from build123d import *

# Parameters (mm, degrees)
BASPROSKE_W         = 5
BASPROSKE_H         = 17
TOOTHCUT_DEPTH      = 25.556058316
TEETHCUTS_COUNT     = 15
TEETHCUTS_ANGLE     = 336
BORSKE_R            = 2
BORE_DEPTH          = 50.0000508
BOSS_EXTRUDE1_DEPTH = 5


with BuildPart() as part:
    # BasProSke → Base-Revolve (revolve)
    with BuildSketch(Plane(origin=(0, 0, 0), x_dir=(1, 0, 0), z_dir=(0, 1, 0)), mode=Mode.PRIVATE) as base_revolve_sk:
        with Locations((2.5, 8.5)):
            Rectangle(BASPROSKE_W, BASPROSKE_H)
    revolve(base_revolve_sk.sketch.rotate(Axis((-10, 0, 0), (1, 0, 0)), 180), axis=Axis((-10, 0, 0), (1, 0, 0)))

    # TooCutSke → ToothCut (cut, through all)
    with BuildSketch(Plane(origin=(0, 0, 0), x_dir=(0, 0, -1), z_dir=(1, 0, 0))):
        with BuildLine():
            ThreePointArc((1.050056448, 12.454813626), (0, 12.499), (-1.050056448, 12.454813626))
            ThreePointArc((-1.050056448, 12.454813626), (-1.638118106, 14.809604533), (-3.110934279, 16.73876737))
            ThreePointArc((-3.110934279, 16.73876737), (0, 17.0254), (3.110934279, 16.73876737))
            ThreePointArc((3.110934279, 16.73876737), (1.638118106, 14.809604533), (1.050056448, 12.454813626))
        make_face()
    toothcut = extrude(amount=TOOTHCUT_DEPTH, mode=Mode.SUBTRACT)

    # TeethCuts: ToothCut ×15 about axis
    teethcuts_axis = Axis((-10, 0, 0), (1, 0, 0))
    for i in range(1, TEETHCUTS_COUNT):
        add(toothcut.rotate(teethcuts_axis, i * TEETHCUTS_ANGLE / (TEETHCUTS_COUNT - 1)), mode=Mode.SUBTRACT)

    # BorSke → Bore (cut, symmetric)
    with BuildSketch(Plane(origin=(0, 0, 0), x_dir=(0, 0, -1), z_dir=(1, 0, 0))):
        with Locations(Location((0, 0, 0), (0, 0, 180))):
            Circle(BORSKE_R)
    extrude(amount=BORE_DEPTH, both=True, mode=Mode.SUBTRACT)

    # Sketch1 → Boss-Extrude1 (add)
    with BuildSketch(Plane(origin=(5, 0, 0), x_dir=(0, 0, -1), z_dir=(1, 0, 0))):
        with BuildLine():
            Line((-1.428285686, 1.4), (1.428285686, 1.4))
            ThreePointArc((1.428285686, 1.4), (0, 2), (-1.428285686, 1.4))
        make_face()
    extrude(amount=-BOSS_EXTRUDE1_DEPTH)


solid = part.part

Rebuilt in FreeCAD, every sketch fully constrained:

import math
import FreeCAD as App
import Part
import Sketcher
from FreeCAD import Vector
Q = App.Units.Quantity


def add_polygon(sketch, points):
    """Adds a closed chain of lines whose ends are joined by coincident constraints."""
    first, n = sketch.GeometryCount, len(points)
    for a, b in zip(points, points[1:] + points[:1]):
        sketch.addGeometry(Part.LineSegment(App.Vector(*a, 0), App.Vector(*b, 0)), False)
    for i in range(n):
        sketch.addConstraint(Sketcher.Constraint("Coincident", first + i, 2, first + (i + 1) % n, 1))

doc = App.newDocument("Part")
body = doc.addObject("PartDesign::Body", "Body")

# Sketch on XZ plane
sketch1 = body.newObject("Sketcher::SketchObject", "Sketch")
sketch1.AttachmentSupport = (doc.getObject("XZ_Plane"), [""])
sketch1.MapMode = "FlatFace"
add_polygon(sketch1, [(0, -17), (0, 0), (5, 0), (5, -17)])  # lines 0-3
sketch1.addConstraint(Sketcher.Constraint("Vertical", 0))
sketch1.addConstraint(Sketcher.Constraint("Horizontal", 1))
sketch1.addConstraint(Sketcher.Constraint("Vertical", 2))
sketch1.addConstraint(Sketcher.Constraint("Horizontal", 3))
sketch1.addConstraint(Sketcher.Constraint("Coincident", 0, 2, -1, 1))
sketch1.addConstraint(Sketcher.Constraint("DistanceX", 1, 1, 1, 2, Q("5 mm")))
sketch1.addConstraint(Sketcher.Constraint("DistanceY", 0, 1, 0, 2, Q("17 mm")))
revolution = body.newObject("PartDesign::Revolution", "Revolution")
revolution.Profile = sketch1
revolution.ReferenceAxis = (sketch1, ["H_Axis"])
revolution.Angle = 360

# Sketch on YZ plane
sketch2 = body.newObject("Sketcher::SketchObject", "Sketch001")
sketch2.AttachmentSupport = (doc.getObject("YZ_Plane"), [""])
sketch2.MapMode = "FlatFace"
sketch2.addGeometry(Part.ArcOfCircle(Part.Circle(Vector(0, 0, 0), Vector(0, 0, 1), 12.499), math.radians(-4.81917), math.radians(4.81917)), False)
sketch2.addGeometry(Part.ArcOfCircle(Part.Circle(Vector(12.208521, -7.044999, 0), Vector(0, 0, 1), 6), math.radians(40.971042), math.radians(87.647418)), False)
sketch2.addGeometry(Part.ArcOfCircle(Part.Circle(Vector(0, 0, 0), Vector(0, 0, 1), 17.0254), math.radians(-10.528414), math.radians(10.528414)), False)
sketch2.addGeometry(Part.ArcOfCircle(Part.Circle(Vector(12.208521, 7.044999, 0), Vector(0, 0, 1), 6), math.radians(-87.647418), math.radians(-40.971042)), False)
sketch2.addConstraint(Sketcher.Constraint("Coincident", 0, 1, 1, 2))
sketch2.addConstraint(Sketcher.Constraint("Coincident", 1, 1, 2, 1))
sketch2.addConstraint(Sketcher.Constraint("Coincident", 2, 2, 3, 2))
sketch2.addConstraint(Sketcher.Constraint("Coincident", 3, 1, 0, 2))
sketch2.addConstraint(Sketcher.Constraint("Coincident", 0, 3, -1, 1))
sketch2.addConstraint(Sketcher.Constraint("Coincident", 2, 3, -1, 1))
sketch2.addConstraint(Sketcher.Constraint("Equal", 1, 3))
sketch2.addConstraint(Sketcher.Constraint("Symmetric", 1, 3, 3, 3, -1))
sketch2.addConstraint(Sketcher.Constraint("Radius", 1, Q("6 mm")))
sketch2.addConstraint(Sketcher.Constraint("Radius", 0, Q("12.499 mm")))
sketch2.addConstraint(Sketcher.Constraint("Radius", 2, Q("17.0254 mm")))
sketch2.addConstraint(Sketcher.Constraint("DistanceY", 1, 3, 3, 3, Q("14.089999 mm")))
sketch2.addConstraint(Sketcher.Constraint("DistanceX", -1, 1, 1, 3, Q("12.208521 mm")))
pocket1 = body.newObject("PartDesign::Pocket", "Pocket")
pocket1.Profile = sketch2
pocket1.Type = "ThroughAll"
pocket1.Reversed = True
doc.recompute()

polarpattern = body.newObject("PartDesign::PolarPattern", "PolarPattern")
polarpattern.Originals = [pocket1]
polarpattern.Axis = (doc.getObject("X_Axis"), [""])
polarpattern.Angle = 360
polarpattern.Occurrences = 15
body.Tip = polarpattern

# Sketch on YZ plane
sketch3 = body.newObject("Sketcher::SketchObject", "Sketch002")
sketch3.AttachmentSupport = (doc.getObject("YZ_Plane"), [""])
sketch3.MapMode = "FlatFace"
sketch3.addGeometry(Part.Circle(Vector(0, 0, 0), Vector(0, 0, 1), 2), False)
sketch3.addConstraint(Sketcher.Constraint("Coincident", 0, 3, -1, 1))
sketch3.addConstraint(Sketcher.Constraint("Diameter", 0, Q("4 mm")))
pocket2 = body.newObject("PartDesign::Pocket", "Pocket001")
pocket2.Profile = sketch3
pocket2.Length = 100.000102
pocket2.Midplane = True

# Sketch on YZ plane
sketch4 = body.newObject("Sketcher::SketchObject", "Sketch003")
sketch4.AttachmentSupport = (doc.getObject("YZ_Plane"), [""])
sketch4.MapMode = "FlatFace"
sketch4.AttachmentOffset = App.Placement(Vector(0, 0, 5), App.Rotation())
sketch4.addGeometry(Part.LineSegment(Vector(1.4, 1.428286, 0), Vector(1.4, -1.428286, 0)), False)
sketch4.addGeometry(Part.ArcOfCircle(Part.Circle(Vector(0, 0, 0), Vector(0, 0, 1), 2), math.radians(-45.572996), math.radians(45.572996)), False)
sketch4.addConstraint(Sketcher.Constraint("Coincident", 0, 1, 1, 2))
sketch4.addConstraint(Sketcher.Constraint("Coincident", 1, 1, 0, 2))
sketch4.addConstraint(Sketcher.Constraint("Vertical", 0))
sketch4.addConstraint(Sketcher.Constraint("Coincident", 1, 3, -1, 1))
sketch4.addConstraint(Sketcher.Constraint("Radius", 1, Q("2 mm")))
sketch4.addConstraint(Sketcher.Constraint("DistanceX", -1, 1, 0, 1, Q("1.4 mm")))
pad1 = body.newObject("PartDesign::Pad", "Pad")
pad1.Profile = sketch4
pad1.Length = 5
pad1.Reversed = True

doc.recompute()
